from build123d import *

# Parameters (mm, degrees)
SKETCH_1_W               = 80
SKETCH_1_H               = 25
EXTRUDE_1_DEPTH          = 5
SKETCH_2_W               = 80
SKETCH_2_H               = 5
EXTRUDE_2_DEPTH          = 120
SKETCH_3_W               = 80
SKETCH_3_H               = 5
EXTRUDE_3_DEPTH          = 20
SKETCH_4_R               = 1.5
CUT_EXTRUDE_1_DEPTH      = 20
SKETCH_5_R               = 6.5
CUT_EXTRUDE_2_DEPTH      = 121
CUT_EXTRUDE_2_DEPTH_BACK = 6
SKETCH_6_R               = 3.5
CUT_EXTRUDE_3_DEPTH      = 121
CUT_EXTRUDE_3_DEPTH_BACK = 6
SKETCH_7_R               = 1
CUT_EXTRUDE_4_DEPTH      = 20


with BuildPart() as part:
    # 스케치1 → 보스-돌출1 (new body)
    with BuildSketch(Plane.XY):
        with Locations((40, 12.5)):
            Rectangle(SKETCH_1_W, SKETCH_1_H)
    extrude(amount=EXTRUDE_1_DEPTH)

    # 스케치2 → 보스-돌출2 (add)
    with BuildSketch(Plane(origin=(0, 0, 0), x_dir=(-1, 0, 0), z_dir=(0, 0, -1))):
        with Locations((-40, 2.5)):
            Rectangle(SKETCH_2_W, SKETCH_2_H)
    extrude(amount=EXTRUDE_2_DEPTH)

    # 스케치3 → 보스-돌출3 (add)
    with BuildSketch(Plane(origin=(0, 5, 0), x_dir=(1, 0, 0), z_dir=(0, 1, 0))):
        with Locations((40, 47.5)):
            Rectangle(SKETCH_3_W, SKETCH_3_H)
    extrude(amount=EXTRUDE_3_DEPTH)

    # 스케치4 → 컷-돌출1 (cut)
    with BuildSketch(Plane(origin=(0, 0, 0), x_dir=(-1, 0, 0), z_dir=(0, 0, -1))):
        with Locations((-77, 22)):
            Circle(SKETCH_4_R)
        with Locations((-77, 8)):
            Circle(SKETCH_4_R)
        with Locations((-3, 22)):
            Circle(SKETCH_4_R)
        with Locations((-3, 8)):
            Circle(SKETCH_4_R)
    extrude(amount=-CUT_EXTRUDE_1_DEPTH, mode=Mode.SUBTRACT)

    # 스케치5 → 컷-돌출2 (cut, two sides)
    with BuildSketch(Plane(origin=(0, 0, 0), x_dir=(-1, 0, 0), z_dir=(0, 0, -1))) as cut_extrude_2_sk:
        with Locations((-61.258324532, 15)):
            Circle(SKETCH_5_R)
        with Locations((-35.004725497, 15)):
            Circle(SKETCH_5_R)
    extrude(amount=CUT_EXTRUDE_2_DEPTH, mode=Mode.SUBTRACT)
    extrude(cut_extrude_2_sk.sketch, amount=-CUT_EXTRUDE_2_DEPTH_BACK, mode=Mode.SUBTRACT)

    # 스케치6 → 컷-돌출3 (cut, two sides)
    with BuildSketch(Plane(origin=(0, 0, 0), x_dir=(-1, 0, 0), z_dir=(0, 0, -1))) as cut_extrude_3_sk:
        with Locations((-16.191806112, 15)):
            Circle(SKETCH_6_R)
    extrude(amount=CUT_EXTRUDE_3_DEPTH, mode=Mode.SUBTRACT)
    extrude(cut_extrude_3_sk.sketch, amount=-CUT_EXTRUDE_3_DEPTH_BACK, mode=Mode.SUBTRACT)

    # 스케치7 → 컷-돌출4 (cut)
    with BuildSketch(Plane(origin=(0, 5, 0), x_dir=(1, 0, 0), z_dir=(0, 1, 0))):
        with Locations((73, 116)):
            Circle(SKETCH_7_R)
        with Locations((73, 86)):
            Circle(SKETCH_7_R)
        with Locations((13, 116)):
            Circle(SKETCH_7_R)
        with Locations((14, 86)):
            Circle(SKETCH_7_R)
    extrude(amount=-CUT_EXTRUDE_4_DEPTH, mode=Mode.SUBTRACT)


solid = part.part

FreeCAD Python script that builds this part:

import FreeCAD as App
import Part
import Sketcher
Q = App.Units.Quantity


def add_polygon(sketch, points):
    """Adds a closed chain of lines whose ends are joined by coincident constraints."""
    first, n = sketch.GeometryCount, len(points)
    for a, b in zip(points, points[1:] + points[:1]):
        sketch.addGeometry(Part.LineSegment(App.Vector(*a, 0), App.Vector(*b, 0)), False)
    for i in range(n):
        sketch.addConstraint(Sketcher.Constraint("Coincident", first + i, 2, first + (i + 1) % n, 1))

doc = App.newDocument("Part")
body = doc.addObject("PartDesign::Body", "Body")

# Sketch on XY plane
sketch1 = body.newObject("Sketcher::SketchObject", "Sketch")
sketch1.AttachmentSupport = (doc.getObject("XY_Plane"), [""])
sketch1.MapMode = "FlatFace"
add_polygon(sketch1, [(0, 25), (0, 0), (80, 0), (80, 25)])  # lines 0-3
sketch1.addConstraint([
    Sketcher.Constraint("Vertical", 0),
    Sketcher.Constraint("Horizontal", 1),
    Sketcher.Constraint("Vertical", 2),
    Sketcher.Constraint("Horizontal", 3),
    Sketcher.Constraint("Coincident", 0, 2, -1, 1),
    Sketcher.Constraint("DistanceX", 1, 1, 1, 2, Q("80 mm")),
    Sketcher.Constraint("DistanceY", 0, 2, 0, 1, Q("25 mm")),
])
pad1 = body.newObject("PartDesign::Pad", "Pad")
pad1.Profile = sketch1
pad1.Length = 5

# Sketch on XY plane
sketch2 = body.newObject("Sketcher::SketchObject", "Sketch001")
sketch2.AttachmentSupport = (doc.getObject("XY_Plane"), [""])
sketch2.MapMode = "FlatFace"
add_polygon(sketch2, [(80, 5), (80, 0), (0, 0), (0, 5)])  # lines 0-3
sketch2.addConstraint([
    Sketcher.Constraint("Vertical", 0),
    Sketcher.Constraint("Horizontal", 1),
    Sketcher.Constraint("Vertical", 2),
    Sketcher.Constraint("Horizontal", 3),
    Sketcher.Constraint("Coincident", 1, 2, -1, 1),
    Sketcher.Constraint("DistanceX", 1, 2, 1, 1, Q("80 mm")),
    Sketcher.Constraint("DistanceY", 0, 2, 0, 1, Q("5 mm")),
])
pad2 = body.newObject("PartDesign::Pad", "Pad001")
pad2.Profile = sketch2
pad2.Length = 120
pad2.Reversed = True

# Sketch on XZ plane
sketch3 = body.newObject("Sketcher::SketchObject", "Sketch002")
sketch3.AttachmentSupport = (doc.getObject("XZ_Plane"), [""])
sketch3.MapMode = "FlatFace"
sketch3.AttachmentOffset = App.Placement(App.Vector(0, 0, -5), App.Rotation())
add_polygon(sketch3, [(0, -50), (0, -45), (80, -45), (80, -50)])  # lines 0-3
sketch3.addConstraint([
    Sketcher.Constraint("Vertical", 0),
    Sketcher.Constraint("Horizontal", 1),
    Sketcher.Constraint("Vertical", 2),
    Sketcher.Constraint("Horizontal", 3),
    Sketcher.Constraint("PointOnObject", 0, 2, -2),
    Sketcher.Constraint("DistanceX", 1, 1, 1, 2, Q("80 mm")),
    Sketcher.Constraint("DistanceY", 0, 1, 0, 2, Q("5 mm")),
    Sketcher.Constraint("DistanceY", 0, 2, -1, 1, Q("45 mm")),
])
pad3 = body.newObject("PartDesign::Pad", "Pad002")
pad3.Profile = sketch3
pad3.Length = 20
pad3.Reversed = True

# Sketch on XY plane
sketch4 = body.newObject("Sketcher::SketchObject", "Sketch003")
sketch4.AttachmentSupport = (doc.getObject("XY_Plane"), [""])
sketch4.MapMode = "FlatFace"
sketch4.addGeometry([
    Part.Circle(App.Vector(77, 22, 0), App.Vector(0, 0, 1), 1.5),
    Part.Circle(App.Vector(77, 8, 0), App.Vector(0, 0, 1), 1.5),
    Part.Circle(App.Vector(3, 22, 0), App.Vector(0, 0, 1), 1.5),
    Part.Circle(App.Vector(3, 8, 0), App.Vector(0, 0, 1), 1.5),
], False)
sketch4.addConstraint([
    Sketcher.Constraint("Equal", 0, 1),
    Sketcher.Constraint("Equal", 1, 2),
    Sketcher.Constraint("Equal", 2, 3),
    Sketcher.Constraint("Horizontal", 0, 3, 2, 3),
    Sketcher.Constraint("Horizontal", 1, 3, 3, 3),
    Sketcher.Constraint("Vertical", 0, 3, 1, 3),
    Sketcher.Constraint("Vertical", 2, 3, 3, 3),
    Sketcher.Constraint("Diameter", 0, Q("3 mm")),
    Sketcher.Constraint("DistanceX", -1, 1, 0, 3, Q("77 mm")),
    Sketcher.Constraint("DistanceY", -1, 1, 0, 3, Q("22 mm")),
    Sketcher.Constraint("DistanceY", -1, 1, 1, 3, Q("8 mm")),
    Sketcher.Constraint("DistanceX", -1, 1, 2, 3, Q("3 mm")),
])
pocket1 = body.newObject("PartDesign::Pocket", "Pocket")
pocket1.Profile = sketch4
pocket1.Length = 20
pocket1.Reversed = True

# Sketch on XY plane
sketch5 = body.newObject("Sketcher::SketchObject", "Sketch004")
sketch5.AttachmentSupport = (doc.getObject("XY_Plane"), [""])
sketch5.MapMode = "FlatFace"
sketch5.addGeometry([
    Part.Circle(App.Vector(61, 15, 0), App.Vector(0, 0, 1), 6),
    Part.Circle(App.Vector(35, 15, 0), App.Vector(0, 0, 1), 6),
], False)
sketch5.addConstraint([
    Sketcher.Constraint("Equal", 0, 1),
    Sketcher.Constraint("Horizontal", 0, 3, 1, 3),
    Sketcher.Constraint("Diameter", 0, Q("13 mm")),
    Sketcher.Constraint("DistanceY", -1, 1, 0, 3, Q("15 mm")),
    Sketcher.Constraint("DistanceX", 1, 3, 0, 3, Q("26.253599 mm")),
    Sketcher.Constraint("DistanceX", -1, 1, 0, 3, Q("61.258325 mm")),
])
pocket2 = body.newObject("PartDesign::Pocket", "Pocket001")
pocket2.Profile = sketch5
pocket2.Type = "ThroughAll"
pocket2.Midplane = True

# Sketch on XY plane
sketch6 = body.newObject("Sketcher::SketchObject", "Sketch005")
sketch6.AttachmentSupport = (doc.getObject("XY_Plane"), [""])
sketch6.MapMode = "FlatFace"
sketch6.addGeometry(Part.Circle(App.Vector(16.2, 15, 0), App.Vector(0, 0, 1), 3.5), False)
sketch6.addConstraint([
    Sketcher.Constraint("Diameter", 0, Q("7 mm")),
    Sketcher.Constraint("DistanceY", -1, 1, 0, 3, Q("15 mm")),
    Sketcher.Constraint("DistanceX", -1, 1, 0, 3, Q("16.191806 mm")),
])
pocket3 = body.newObject("PartDesign::Pocket", "Pocket002")
pocket3.Profile = sketch6
pocket3.Type = "ThroughAll"
pocket3.Midplane = True

# Sketch on XZ plane
sketch7 = body.newObject("Sketcher::SketchObject", "Sketch006")
sketch7.AttachmentSupport = (doc.getObject("XZ_Plane"), [""])
sketch7.MapMode = "FlatFace"
sketch7.AttachmentOffset = App.Placement(App.Vector(0, 0, -5), App.Rotation())
sketch7.addGeometry([
    Part.Circle(App.Vector(73, -116, 0), App.Vector(0, 0, 1), 1),
    Part.Circle(App.Vector(73, -86, 0), App.Vector(0, 0, 1), 1),
    Part.Circle(App.Vector(13, -116, 0), App.Vector(0, 0, 1), 1),
    Part.Circle(App.Vector(14, -86, 0), App.Vector(0, 0, 1), 1),
], False)
sketch7.addConstraint([
    Sketcher.Constraint("Equal", 0, 1),
    Sketcher.Constraint("Equal", 1, 2),
    Sketcher.Constraint("Equal", 2, 3),
    Sketcher.Constraint("Horizontal", 0, 3, 2, 3),
    Sketcher.Constraint("Horizontal", 1, 3, 3, 3),
    Sketcher.Constraint("Vertical", 0, 3, 1, 3),
    Sketcher.Constraint("Diameter", 0, Q("2 mm")),
    Sketcher.Constraint("DistanceX", -1, 1, 0, 3, Q("73 mm")),
    Sketcher.Constraint("DistanceY", 0, 3, -1, 1, Q("116 mm")),
    Sketcher.Constraint("DistanceY", 1, 3, -1, 1, Q("86 mm")),
    Sketcher.Constraint("DistanceX", -1, 1, 2, 3, Q("13 mm")),
    Sketcher.Constraint("DistanceX", -1, 1, 3, 3, Q("14 mm")),
])
pocket4 = body.newObject("PartDesign::Pocket", "Pocket003")
pocket4.Profile = sketch7
pocket4.Length = 20
pocket4.Reversed = True

doc.recompute()
